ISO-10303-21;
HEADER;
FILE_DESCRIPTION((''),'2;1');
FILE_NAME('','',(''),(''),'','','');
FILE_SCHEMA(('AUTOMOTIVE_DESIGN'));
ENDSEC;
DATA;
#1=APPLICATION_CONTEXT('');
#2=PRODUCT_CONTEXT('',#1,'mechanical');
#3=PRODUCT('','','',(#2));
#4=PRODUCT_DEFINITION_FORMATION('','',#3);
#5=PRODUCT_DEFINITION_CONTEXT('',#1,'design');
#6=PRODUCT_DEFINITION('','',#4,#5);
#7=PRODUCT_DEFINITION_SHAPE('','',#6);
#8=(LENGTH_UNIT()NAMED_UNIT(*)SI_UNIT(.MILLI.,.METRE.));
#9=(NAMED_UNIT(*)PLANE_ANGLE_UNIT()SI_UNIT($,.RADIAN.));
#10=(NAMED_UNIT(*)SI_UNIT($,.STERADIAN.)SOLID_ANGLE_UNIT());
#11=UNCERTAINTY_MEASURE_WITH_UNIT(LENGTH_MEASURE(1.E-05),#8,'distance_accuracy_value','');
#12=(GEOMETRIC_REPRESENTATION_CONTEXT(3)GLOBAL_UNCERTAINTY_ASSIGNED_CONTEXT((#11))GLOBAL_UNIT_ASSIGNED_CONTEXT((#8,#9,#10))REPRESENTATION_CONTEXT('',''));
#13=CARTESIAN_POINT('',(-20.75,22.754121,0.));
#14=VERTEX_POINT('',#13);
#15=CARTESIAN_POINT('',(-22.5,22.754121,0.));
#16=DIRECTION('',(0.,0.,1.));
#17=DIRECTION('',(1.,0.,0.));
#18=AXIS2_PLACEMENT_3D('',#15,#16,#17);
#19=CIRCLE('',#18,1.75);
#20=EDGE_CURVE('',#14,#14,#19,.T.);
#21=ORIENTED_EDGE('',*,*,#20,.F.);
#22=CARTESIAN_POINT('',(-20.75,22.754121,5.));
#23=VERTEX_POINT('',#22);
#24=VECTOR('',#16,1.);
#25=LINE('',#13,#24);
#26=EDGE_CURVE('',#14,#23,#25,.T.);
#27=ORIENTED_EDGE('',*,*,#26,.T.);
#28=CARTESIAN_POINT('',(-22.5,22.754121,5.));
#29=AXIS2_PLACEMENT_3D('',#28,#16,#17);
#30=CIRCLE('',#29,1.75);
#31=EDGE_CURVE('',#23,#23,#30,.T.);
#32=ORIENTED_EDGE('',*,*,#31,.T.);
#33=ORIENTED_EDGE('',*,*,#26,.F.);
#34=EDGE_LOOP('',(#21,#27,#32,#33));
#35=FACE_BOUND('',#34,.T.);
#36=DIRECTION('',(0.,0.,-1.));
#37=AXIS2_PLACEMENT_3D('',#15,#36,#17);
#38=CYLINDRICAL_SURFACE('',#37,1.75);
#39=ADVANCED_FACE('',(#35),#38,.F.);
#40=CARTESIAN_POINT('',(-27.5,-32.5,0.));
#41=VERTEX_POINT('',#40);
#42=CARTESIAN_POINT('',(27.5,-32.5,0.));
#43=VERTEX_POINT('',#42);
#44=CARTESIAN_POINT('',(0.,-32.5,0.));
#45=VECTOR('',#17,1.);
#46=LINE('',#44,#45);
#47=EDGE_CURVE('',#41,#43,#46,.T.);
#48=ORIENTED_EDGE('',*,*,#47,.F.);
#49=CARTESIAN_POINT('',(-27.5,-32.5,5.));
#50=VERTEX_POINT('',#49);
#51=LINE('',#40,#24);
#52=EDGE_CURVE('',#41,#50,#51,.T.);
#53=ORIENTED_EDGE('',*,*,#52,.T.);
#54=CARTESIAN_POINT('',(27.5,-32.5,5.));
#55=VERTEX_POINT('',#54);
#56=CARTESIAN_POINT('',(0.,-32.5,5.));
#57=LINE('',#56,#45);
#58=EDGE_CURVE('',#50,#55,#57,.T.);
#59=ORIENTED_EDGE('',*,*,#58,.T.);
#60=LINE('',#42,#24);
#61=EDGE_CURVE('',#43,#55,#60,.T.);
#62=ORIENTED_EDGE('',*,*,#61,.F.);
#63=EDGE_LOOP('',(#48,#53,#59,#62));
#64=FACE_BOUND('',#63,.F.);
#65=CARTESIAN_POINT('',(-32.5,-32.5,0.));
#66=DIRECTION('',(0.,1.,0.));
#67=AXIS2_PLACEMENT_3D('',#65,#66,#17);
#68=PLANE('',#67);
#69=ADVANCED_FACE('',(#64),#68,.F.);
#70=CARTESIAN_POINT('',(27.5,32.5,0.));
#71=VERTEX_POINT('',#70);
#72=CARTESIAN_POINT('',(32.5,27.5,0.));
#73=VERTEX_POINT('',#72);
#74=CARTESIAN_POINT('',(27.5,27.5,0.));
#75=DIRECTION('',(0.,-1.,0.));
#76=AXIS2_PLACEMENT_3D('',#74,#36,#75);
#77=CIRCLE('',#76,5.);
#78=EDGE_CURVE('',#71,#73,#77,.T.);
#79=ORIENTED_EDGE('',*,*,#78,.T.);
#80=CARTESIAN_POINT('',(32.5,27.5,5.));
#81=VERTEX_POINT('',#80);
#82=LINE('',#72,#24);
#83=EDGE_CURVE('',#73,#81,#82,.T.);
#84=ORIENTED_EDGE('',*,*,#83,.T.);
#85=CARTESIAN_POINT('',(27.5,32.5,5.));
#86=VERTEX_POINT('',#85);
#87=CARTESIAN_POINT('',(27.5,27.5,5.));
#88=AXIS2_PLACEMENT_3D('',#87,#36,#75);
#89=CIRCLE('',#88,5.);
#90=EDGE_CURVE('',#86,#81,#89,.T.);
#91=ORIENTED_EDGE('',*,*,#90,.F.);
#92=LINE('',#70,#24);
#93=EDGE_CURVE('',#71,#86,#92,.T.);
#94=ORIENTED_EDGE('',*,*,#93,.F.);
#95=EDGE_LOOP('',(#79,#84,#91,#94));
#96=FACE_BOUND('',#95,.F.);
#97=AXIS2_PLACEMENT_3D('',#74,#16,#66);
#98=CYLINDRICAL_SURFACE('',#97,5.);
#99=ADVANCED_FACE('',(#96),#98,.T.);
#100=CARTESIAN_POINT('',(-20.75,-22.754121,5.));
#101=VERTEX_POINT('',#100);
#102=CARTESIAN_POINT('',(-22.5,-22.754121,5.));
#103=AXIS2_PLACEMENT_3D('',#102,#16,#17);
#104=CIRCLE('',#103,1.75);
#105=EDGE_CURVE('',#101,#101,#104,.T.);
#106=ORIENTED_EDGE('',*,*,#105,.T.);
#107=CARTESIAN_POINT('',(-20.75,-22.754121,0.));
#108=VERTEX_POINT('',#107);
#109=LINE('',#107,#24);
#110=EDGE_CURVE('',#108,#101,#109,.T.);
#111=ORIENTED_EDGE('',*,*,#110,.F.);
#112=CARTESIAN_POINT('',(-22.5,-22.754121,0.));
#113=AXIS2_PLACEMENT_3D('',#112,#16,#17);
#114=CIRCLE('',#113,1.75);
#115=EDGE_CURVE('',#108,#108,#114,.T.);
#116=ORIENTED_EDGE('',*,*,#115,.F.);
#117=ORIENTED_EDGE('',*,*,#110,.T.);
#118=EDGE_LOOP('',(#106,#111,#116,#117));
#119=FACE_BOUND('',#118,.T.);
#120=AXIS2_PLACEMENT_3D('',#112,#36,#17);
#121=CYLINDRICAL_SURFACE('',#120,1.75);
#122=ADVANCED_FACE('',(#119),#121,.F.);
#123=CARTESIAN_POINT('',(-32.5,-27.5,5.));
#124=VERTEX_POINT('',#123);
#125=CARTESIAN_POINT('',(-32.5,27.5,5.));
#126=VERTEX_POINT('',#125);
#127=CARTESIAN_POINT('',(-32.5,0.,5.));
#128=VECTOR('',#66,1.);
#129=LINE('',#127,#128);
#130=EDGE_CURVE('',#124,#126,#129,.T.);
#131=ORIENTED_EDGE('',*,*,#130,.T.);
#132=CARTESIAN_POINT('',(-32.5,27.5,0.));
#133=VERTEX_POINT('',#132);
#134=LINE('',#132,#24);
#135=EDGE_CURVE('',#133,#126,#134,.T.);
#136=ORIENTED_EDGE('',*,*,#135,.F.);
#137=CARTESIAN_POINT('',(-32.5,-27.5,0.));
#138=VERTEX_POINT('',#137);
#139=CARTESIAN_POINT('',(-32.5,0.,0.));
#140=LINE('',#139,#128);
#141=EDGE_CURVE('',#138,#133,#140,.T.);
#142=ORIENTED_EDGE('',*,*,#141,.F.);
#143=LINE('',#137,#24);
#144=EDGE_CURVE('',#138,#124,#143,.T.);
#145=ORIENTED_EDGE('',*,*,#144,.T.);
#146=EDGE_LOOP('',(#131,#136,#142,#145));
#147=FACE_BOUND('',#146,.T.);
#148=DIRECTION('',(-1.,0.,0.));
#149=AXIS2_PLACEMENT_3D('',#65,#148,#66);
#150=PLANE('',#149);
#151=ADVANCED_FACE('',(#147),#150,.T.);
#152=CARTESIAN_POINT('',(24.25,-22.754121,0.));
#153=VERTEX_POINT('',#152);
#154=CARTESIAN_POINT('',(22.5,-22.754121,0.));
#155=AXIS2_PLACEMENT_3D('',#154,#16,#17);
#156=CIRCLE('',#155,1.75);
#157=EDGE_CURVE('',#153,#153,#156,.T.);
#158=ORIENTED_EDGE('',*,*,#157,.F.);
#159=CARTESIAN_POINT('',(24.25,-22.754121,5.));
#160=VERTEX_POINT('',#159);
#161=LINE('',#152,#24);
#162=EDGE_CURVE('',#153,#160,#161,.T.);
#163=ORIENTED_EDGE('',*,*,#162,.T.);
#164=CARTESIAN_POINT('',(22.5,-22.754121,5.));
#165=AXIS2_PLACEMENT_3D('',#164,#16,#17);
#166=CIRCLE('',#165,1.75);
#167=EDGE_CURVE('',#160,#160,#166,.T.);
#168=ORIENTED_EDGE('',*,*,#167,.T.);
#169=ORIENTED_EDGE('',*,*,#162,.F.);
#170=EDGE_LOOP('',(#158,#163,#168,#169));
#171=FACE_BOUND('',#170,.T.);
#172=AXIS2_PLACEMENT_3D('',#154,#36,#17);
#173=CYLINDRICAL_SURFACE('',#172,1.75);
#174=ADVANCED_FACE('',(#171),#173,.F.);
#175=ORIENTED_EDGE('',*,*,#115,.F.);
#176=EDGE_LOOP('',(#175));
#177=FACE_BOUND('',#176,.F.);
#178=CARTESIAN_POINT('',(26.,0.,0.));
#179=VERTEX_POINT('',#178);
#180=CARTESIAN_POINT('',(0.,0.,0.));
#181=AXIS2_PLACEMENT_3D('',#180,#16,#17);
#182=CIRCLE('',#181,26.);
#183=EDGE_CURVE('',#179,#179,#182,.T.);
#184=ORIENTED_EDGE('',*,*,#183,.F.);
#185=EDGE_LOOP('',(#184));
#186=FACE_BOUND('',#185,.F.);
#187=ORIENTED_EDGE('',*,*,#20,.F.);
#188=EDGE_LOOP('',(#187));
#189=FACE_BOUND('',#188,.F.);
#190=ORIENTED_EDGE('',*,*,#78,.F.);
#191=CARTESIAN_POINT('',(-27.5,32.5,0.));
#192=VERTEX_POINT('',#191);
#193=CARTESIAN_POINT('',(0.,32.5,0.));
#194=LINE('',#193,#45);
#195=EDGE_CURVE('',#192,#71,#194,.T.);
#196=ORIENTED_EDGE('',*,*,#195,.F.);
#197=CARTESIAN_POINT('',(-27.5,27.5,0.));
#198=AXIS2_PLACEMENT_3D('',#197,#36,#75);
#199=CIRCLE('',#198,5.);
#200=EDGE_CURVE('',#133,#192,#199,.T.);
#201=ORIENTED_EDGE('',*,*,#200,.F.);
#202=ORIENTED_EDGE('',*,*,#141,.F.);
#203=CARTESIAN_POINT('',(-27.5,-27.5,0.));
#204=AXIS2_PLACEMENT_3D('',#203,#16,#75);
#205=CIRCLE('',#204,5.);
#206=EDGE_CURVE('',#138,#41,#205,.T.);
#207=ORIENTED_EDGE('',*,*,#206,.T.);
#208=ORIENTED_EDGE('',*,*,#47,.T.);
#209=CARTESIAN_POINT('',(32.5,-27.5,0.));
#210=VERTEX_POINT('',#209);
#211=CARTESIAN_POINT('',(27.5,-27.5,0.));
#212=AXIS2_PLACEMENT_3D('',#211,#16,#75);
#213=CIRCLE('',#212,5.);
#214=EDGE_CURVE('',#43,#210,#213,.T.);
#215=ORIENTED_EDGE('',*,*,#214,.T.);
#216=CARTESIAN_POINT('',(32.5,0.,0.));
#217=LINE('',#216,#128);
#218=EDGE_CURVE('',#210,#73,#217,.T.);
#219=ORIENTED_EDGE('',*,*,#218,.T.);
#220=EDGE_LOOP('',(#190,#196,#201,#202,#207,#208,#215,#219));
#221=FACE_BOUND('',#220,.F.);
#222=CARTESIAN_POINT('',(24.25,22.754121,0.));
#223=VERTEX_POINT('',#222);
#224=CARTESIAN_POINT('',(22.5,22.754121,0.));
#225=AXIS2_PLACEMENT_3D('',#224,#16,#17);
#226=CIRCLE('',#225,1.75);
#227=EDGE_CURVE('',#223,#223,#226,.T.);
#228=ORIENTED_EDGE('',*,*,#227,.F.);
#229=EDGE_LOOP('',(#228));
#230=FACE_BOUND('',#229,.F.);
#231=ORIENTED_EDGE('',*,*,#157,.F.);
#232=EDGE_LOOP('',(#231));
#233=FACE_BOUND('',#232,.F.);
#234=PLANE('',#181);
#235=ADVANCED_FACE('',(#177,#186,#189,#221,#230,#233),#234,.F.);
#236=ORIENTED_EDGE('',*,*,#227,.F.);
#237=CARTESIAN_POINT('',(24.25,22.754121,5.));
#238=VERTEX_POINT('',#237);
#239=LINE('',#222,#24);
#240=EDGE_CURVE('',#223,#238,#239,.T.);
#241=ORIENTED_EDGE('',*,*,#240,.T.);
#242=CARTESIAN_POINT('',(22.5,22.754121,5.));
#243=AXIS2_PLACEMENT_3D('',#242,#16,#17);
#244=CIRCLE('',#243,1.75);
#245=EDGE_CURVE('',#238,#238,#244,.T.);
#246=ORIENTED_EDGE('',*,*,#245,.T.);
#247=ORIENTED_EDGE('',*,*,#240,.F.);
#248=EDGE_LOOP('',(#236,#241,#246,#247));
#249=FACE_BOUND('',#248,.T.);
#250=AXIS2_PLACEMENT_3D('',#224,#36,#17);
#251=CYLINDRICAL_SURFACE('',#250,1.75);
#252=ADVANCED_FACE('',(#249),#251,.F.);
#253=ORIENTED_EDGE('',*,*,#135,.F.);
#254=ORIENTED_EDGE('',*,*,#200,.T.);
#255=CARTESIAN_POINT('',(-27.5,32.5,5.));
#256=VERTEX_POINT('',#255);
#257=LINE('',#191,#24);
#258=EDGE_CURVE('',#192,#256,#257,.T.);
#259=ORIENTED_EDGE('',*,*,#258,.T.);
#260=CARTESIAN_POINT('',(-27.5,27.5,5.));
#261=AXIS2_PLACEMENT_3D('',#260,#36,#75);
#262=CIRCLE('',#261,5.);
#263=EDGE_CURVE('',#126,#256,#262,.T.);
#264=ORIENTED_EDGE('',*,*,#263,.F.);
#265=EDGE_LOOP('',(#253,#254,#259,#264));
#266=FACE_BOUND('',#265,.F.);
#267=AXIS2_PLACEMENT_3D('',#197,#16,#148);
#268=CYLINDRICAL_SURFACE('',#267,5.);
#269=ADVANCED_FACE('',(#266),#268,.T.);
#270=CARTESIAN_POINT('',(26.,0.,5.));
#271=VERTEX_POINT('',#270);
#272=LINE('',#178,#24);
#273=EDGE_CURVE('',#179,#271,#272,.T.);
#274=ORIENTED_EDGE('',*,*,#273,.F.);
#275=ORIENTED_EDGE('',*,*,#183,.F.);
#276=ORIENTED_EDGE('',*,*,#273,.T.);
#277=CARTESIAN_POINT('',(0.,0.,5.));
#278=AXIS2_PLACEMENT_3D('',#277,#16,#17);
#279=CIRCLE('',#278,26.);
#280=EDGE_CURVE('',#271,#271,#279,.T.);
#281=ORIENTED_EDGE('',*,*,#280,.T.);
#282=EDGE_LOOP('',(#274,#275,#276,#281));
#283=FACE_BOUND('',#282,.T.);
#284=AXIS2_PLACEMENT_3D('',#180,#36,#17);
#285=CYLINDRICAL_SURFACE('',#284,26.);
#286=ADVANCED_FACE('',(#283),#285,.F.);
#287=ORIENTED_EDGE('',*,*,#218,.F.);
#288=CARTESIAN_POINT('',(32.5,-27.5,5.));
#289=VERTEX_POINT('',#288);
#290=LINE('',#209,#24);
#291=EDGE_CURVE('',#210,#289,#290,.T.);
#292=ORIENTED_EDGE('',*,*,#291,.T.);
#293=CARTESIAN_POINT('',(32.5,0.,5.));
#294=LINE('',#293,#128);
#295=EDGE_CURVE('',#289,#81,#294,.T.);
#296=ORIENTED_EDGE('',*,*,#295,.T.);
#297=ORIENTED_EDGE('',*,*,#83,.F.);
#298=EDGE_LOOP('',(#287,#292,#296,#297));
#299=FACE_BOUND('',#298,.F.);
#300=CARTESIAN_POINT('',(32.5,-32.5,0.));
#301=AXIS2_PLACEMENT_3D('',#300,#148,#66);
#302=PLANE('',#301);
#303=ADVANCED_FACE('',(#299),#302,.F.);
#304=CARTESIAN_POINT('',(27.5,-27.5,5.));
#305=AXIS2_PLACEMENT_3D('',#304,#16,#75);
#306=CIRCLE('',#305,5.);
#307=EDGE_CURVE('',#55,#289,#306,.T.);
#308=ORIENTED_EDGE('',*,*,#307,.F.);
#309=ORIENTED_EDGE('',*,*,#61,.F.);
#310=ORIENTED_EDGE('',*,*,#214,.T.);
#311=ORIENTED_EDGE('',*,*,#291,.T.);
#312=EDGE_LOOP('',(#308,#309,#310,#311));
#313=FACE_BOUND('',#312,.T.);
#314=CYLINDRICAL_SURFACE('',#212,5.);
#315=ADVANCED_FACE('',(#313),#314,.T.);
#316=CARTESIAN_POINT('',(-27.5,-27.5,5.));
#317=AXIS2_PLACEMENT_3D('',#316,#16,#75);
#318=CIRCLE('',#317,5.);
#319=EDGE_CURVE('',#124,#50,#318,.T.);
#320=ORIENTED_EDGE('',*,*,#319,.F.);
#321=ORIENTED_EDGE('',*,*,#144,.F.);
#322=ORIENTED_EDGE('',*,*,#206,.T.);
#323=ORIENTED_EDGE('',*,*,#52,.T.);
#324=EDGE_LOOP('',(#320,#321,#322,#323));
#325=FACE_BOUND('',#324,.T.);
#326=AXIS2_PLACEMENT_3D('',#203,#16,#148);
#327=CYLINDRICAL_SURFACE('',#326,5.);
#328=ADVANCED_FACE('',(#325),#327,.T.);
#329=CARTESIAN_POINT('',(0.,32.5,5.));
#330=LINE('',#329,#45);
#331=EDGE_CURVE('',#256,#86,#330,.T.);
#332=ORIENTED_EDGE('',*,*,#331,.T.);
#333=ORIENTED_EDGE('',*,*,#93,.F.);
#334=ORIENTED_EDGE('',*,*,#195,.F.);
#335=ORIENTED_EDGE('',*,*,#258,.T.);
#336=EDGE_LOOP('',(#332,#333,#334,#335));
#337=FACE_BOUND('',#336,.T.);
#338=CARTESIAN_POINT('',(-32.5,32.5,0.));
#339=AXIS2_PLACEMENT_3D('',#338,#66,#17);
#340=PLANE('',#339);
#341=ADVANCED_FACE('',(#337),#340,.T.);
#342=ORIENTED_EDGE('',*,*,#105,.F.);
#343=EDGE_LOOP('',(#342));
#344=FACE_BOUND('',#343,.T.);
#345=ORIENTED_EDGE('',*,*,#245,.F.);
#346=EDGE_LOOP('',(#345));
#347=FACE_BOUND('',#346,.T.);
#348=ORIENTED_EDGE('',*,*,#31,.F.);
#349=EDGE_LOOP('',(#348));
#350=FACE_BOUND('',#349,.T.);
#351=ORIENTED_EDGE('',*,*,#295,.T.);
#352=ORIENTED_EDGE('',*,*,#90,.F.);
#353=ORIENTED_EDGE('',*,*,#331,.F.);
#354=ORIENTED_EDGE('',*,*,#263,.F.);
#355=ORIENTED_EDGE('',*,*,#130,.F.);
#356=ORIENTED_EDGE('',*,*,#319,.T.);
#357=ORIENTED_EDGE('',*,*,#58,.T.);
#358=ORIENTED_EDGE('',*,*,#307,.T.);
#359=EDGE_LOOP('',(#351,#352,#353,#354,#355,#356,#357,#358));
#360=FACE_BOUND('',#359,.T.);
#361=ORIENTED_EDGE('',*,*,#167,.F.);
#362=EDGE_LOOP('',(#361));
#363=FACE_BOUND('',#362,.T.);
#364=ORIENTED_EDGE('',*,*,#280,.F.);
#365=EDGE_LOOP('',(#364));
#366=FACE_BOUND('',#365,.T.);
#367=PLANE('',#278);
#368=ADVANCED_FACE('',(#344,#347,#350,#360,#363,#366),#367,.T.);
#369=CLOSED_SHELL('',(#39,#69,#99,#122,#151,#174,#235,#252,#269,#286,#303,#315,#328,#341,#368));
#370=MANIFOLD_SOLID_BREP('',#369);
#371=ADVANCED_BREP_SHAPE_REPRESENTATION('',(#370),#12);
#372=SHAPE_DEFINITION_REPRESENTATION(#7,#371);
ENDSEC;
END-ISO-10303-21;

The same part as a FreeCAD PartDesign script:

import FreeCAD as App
import Part
import Sketcher
from FreeCAD import Vector


def edges_at(feature, points):
    """Names of the edges that pass closest to the given points."""
    edges = feature.Shape.Edges
    near = lambda p: min(range(len(edges)), key=lambda i: edges[i].distToShape(Part.Vertex(*p))[0])
    return sorted({f"Edge{near(p) + 1}" for p in points})


def add_polygon(sketch, points):
    """Adds a closed chain of lines whose ends are joined by coincident constraints."""
    first, n = sketch.GeometryCount, len(points)
    for a, b in zip(points, points[1:] + points[:1]):
        sketch.addGeometry(Part.LineSegment(App.Vector(*a, 0), App.Vector(*b, 0)), False)
    for i in range(n):
        sketch.addConstraint(Sketcher.Constraint("Coincident", first + i, 2, first + (i + 1) % n, 1))

doc = App.newDocument("Part")
params = doc.addObject("Spreadsheet::Sheet", "Params")
for row, (alias, value) in enumerate([
    ("sketch1_width", "65 mm"),
    ("pad1_length", "5 mm"),
    ("sketch2_diameter", "52 mm"),
    ("sketch2_diameter2", "3.5 mm"),
    ("pocket1_length", "5 mm"),
    ("fillet_radius", "5 mm"),
], start=1):
    params.set(f"A{row}", alias)
    params.set(f"B{row}", "=" + value)
    params.setAlias(f"B{row}", alias)

body = doc.addObject("PartDesign::Body", "Body")

sketch1 = doc.addObject("Sketcher::SketchObject", "Sketch")
body.addObject(sketch1)
sketch1.AttachmentSupport = (doc.XY_Plane, [""])
sketch1.MapMode = "FlatFace"
add_polygon(sketch1, [(-32, 32), (-32, -32), (32, -32), (32, 32)])
sketch1.addConstraint([
    Sketcher.Constraint("Vertical", 0),
    Sketcher.Constraint("Horizontal", 1),
    Sketcher.Constraint("Vertical", 2),
    Sketcher.Constraint("Horizontal", 3),
    Sketcher.Constraint("Symmetric", 0, 2, 2, 2, -1, 1),
    Sketcher.Constraint("Equal", 3, 0),
    Sketcher.Constraint("DistanceX", 1, 1, 1, 2, 65.0),
])
sketch1.setExpression("Constraints[10]", "Params.sketch1_width")
pad1 = doc.addObject("PartDesign::Pad", "Pad")
body.addObject(pad1)
pad1.Profile = sketch1
pad1.setExpression("Length", "Params.pad1_length")

sketch2 = doc.addObject("Sketcher::SketchObject", "Sketch001")
body.addObject(sketch2)
sketch2.AttachmentSupport = (doc.XY_Plane, [""])
sketch2.MapMode = "FlatFace"
sketch2.addGeometry([
    Part.Circle(Vector(-22.5, 22.8, 0), Vector(0, 0, 1), 1.8),
    Part.Circle(Vector(22.5, 22.8, 0), Vector(0, 0, 1), 1.8),
    Part.Circle(Vector(-22.5, -22.8, 0), Vector(0, 0, 1), 1.8),
    Part.Circle(Vector(22.5, -22.8, 0), Vector(0, 0, 1), 1.8),
    Part.Circle(Vector(0, 0, 0), Vector(0, 0, 1), 26),
], False)
sketch2.addConstraint([
    Sketcher.Constraint("Coincident", 4, 3, -1, 1),
    Sketcher.Constraint("Equal", 0, 1),
    Sketcher.Constraint("Equal", 1, 2),
    Sketcher.Constraint("Equal", 2, 3),
    Sketcher.Constraint("Symmetric", 1, 3, 2, 3, -1, 1),
    Sketcher.Constraint("Symmetric", 0, 3, 3, 3, -1, 1),
    Sketcher.Constraint("Symmetric", 0, 3, 1, 3, -2),
    Sketcher.Constraint("Diameter", 4, 52.0),
    Sketcher.Constraint("Diameter", 0, 3.5),
    Sketcher.Constraint("DistanceX", 0, 3, 1, 3, 45.0),
    Sketcher.Constraint("DistanceY", -1, 1, 0, 3, 22.754121),
])
sketch2.setExpression("Constraints[7]", "Params.sketch2_diameter")
sketch2.setExpression("Constraints[8]", "Params.sketch2_diameter2")
pocket1 = doc.addObject("PartDesign::Pocket", "Pocket")
body.addObject(pocket1)
pocket1.Profile = sketch2
pocket1.setExpression("Length", "Params.pocket1_length")
pocket1.Reversed = True
doc.recompute()

fillet = doc.addObject("PartDesign::Fillet", "Fillet")
body.addObject(fillet)
fillet.Base = (pocket1, edges_at(pocket1, [
    (-32.5, -32.5, 2.5),
    (32.5, -32.5, 2.5),
    (32.5, 32.5, 2.5),
    (-32.5, 32.5, 2.5),
]))
fillet.setExpression("Radius", "Params.fillet_radius")

doc.recompute()
